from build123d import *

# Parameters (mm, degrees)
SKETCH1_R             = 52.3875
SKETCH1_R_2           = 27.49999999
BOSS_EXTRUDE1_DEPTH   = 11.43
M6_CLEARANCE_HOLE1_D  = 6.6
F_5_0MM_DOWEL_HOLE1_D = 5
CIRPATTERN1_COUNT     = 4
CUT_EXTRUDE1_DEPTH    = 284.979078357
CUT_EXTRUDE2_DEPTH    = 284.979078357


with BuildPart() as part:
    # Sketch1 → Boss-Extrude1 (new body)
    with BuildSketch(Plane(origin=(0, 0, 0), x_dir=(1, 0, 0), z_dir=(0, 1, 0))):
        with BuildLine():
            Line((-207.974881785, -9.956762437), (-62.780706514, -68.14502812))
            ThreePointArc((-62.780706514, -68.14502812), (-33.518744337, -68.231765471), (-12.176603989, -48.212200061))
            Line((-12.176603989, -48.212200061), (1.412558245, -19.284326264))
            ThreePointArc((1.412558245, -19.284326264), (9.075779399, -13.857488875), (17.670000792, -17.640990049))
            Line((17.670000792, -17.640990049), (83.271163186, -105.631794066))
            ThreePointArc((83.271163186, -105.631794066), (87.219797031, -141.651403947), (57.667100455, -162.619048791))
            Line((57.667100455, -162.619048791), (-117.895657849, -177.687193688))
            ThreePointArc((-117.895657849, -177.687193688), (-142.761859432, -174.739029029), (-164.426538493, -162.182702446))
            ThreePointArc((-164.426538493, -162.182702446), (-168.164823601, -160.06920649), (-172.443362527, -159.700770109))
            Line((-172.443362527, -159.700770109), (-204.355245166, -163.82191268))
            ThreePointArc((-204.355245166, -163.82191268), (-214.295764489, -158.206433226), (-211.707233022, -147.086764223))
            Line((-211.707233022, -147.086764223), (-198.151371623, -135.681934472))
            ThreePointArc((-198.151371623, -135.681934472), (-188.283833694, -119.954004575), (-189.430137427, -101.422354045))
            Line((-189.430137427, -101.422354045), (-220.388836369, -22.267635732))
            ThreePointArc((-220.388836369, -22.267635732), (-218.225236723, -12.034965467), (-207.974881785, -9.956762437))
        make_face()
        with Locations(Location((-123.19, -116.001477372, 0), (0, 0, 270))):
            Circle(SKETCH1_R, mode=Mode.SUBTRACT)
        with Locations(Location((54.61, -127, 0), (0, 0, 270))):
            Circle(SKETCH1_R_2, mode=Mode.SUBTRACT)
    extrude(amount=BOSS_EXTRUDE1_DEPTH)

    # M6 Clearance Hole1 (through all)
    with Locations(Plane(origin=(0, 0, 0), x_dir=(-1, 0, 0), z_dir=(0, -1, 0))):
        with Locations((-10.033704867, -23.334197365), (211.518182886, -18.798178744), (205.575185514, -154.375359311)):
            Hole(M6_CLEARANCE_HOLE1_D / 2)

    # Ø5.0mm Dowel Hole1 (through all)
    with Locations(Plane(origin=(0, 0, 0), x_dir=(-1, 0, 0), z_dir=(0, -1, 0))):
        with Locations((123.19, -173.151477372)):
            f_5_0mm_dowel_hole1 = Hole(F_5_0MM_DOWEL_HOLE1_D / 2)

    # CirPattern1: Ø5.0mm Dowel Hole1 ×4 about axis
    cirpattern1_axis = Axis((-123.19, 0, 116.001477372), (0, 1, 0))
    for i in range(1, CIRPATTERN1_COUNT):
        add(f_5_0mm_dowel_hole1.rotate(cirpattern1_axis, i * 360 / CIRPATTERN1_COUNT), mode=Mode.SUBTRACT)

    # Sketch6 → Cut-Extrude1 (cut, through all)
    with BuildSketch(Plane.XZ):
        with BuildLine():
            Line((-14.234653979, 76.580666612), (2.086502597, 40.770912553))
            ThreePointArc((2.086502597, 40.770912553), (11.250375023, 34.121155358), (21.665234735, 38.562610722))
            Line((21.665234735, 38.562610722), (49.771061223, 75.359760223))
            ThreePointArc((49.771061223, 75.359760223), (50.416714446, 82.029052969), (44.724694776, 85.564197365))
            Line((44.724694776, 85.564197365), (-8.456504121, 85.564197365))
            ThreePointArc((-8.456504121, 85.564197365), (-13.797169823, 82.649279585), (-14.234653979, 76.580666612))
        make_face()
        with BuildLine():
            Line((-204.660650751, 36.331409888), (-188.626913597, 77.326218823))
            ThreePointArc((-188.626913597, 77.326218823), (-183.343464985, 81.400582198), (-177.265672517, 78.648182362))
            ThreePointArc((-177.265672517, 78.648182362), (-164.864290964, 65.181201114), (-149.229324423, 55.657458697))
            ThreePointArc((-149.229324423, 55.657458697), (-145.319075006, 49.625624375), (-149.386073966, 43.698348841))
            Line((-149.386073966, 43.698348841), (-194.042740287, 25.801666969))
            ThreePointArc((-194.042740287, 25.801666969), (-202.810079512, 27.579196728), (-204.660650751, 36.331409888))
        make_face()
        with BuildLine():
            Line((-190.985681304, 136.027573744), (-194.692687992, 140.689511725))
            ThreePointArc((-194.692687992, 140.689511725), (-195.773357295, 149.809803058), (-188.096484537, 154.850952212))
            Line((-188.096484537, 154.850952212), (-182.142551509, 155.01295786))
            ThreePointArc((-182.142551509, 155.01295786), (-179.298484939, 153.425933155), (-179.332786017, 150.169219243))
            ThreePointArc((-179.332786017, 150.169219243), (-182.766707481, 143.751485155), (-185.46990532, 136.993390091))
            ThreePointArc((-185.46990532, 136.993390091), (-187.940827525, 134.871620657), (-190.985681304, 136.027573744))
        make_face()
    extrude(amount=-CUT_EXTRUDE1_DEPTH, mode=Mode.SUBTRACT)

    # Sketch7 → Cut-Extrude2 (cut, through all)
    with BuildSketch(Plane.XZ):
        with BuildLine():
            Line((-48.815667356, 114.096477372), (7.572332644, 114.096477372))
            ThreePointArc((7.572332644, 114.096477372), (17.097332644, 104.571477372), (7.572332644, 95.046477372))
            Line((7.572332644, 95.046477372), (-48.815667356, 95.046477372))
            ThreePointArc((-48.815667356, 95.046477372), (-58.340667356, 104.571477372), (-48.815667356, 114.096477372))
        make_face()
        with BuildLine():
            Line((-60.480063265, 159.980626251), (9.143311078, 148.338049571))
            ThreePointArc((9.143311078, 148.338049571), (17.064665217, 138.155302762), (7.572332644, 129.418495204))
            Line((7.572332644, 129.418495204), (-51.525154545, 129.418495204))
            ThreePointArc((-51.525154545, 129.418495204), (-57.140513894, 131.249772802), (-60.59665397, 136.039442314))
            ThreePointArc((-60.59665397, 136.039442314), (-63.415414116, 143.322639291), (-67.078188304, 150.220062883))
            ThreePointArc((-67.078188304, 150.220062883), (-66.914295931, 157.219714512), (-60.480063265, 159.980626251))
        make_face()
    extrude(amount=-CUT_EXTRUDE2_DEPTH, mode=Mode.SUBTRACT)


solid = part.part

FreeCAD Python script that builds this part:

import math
import FreeCAD as App
import Part
import Sketcher
from FreeCAD import Vector
Q = App.Units.Quantity

doc = App.newDocument("Part")
body = doc.addObject("PartDesign::Body", "Body")

# Sketch on XZ plane
sketch1 = body.newObject("Sketcher::SketchObject", "Sketch")
sketch1.AttachmentSupport = (doc.getObject("XZ_Plane"), [""])
sketch1.MapMode = "FlatFace"
sketch1.addGeometry([
    Part.LineSegment(Vector(-62.780707, 68.145028, 0), Vector(-207.974882, 9.956762, 0)),  # 0
    Part.ArcOfCircle(Part.Circle(Vector(-211.518183, 18.798179, 0), Vector(0, 0, 1), 9.525), math.radians(158.638723), math.radians(291.839023)),  # 1
    Part.LineSegment(Vector(-220.388836, 22.267636, 0), Vector(-189.430137, 101.422354, 0)),  # 2
    Part.ArcOfCircle(Part.Circle(Vector(-217.679198, 112.471022, 0), Vector(0, 0, 1), 30.332861), math.radians(-21.361277), math.radians(49.925396)),  # 3
    Part.LineSegment(Vector(-198.151372, 135.681934, 0), Vector(-211.707233, 147.086764, 0)),  # 4
    Part.ArcOfCircle(Part.Circle(Vector(-205.575186, 154.375359, 0), Vector(0, 0, 1), 9.525), math.radians(82.641474), math.radians(229.925396)),  # 5
    Part.LineSegment(Vector(-204.355245, 163.821913, 0), Vector(-172.443363, 159.70077, 0)),  # 6
    Part.ArcOfCircle(Part.Circle(Vector(-171.150394, 169.712817, 0), Vector(0, 0, 1), 10.09519), math.radians(-97.358526), math.radians(-48.237421)),  # 7
    Part.ArcOfCircle(Part.Circle(Vector(-123.19, 116.001477, 0), Vector(0, 0, 1), 61.9125), math.radians(85.094458), math.radians(131.762579)),  # 8
    Part.LineSegment(Vector(-117.895658, 177.687194, 0), Vector(57.6671, 162.619049, 0)),  # 9
    Part.ArcOfCircle(Part.Circle(Vector(54.61, 127, 0), Vector(0, 0, 1), 35.75), math.radians(-36.706211), math.radians(85.094458)),  # 10
    Part.LineSegment(Vector(83.271163, 105.631794, 0), Vector(17.670001, 17.64099, 0)),  # 11
    Part.ArcOfCircle(Part.Circle(Vector(10.033705, 23.334197, 0), Vector(0, 0, 1), 9.525), math.radians(-154.837733), math.radians(-36.706211)),  # 12
    Part.LineSegment(Vector(1.412558, 19.284326, 0), Vector(-12.176604, 48.2122, 0)),  # 13
    Part.ArcOfCircle(Part.Circle(Vector(-48.040574, 31.364736, 0), Vector(0, 0, 1), 39.624), math.radians(25.162267), math.radians(111.839023)),  # 14
    Part.Circle(Vector(54.61, 127, 0), Vector(0, 0, 1), 27.5),  # 15
    Part.Circle(Vector(-123.19, 116.001477, 0), Vector(0, 0, 1), 52.3875),  # 16
], False)
sketch1.addConstraint([
    Sketcher.Constraint("Tangent", 0, 2, 1, 2),
    Sketcher.Constraint("Tangent", 1, 1, 2, 1),
    Sketcher.Constraint("Tangent", 2, 2, 3, 1),
    Sketcher.Constraint("Tangent", 3, 2, 4, 1),
    Sketcher.Constraint("Tangent", 4, 2, 5, 2),
    Sketcher.Constraint("Tangent", 5, 1, 6, 1),
    Sketcher.Constraint("Tangent", 6, 2, 7, 1),
    Sketcher.Constraint("Tangent", 7, 2, 8, 2),
    Sketcher.Constraint("Tangent", 8, 1, 9, 1),
    Sketcher.Constraint("Tangent", 9, 2, 10, 2),
    Sketcher.Constraint("Tangent", 10, 1, 11, 1),
    Sketcher.Constraint("Tangent", 11, 2, 12, 2),
    Sketcher.Constraint("Tangent", 12, 1, 13, 1),
    Sketcher.Constraint("Tangent", 13, 2, 14, 1),
    Sketcher.Constraint("Tangent", 14, 2, 0, 1),
    Sketcher.Constraint("Coincident", 15, 3, 10, 3),
    Sketcher.Constraint("Coincident", 16, 3, 8, 3),
    Sketcher.Constraint("Equal", 1, 5),
    Sketcher.Constraint("Equal", 5, 12),
    Sketcher.Constraint("Radius", 14, Q("1.56 in")),
    Sketcher.Constraint("Diameter", 16, Q("4.125 in")),
    Sketcher.Constraint("DistanceY", -1, 1, 10, 3, Q("5 in")),
    Sketcher.Constraint("Radius", 1, Q("0.375 in")),
    Sketcher.Constraint("Radius", 8, Q("2.4375 in")),
    Sketcher.Constraint("DistanceX", 8, 3, 10, 3, Q("7 in")),
    Sketcher.Constraint("Diameter", 15, 55.0),
    Sketcher.Constraint("DistanceX", 8, 3, -1, 1, Q("4.85 in")),
    Sketcher.Constraint("Radius", 10, 35.75),
    Sketcher.Constraint("Radius", 3, 30.332861),
    Sketcher.Constraint("Radius", 7, 10.09519),
    Sketcher.Constraint("DistanceX", 1, 3, 0, 2, Q("0.1395 in")),
    Sketcher.Constraint("DistanceY", 14, 3, 10, 1, Q("2.9238999 in")),
    Sketcher.Constraint("DistanceX", 3, 3, -1, 1, 217.679198),
    Sketcher.Constraint("DistanceX", -1, 1, 9, 2, 57.6671),
    Sketcher.Constraint("DistanceX", -1, 1, 11, 2, 17.670001),
    Sketcher.Constraint("DistanceY", -1, 1, 13, 2, 48.2122),
    Sketcher.Constraint("DistanceY", 1, 3, 8, 3, 97.203299),
    Sketcher.Constraint("DistanceX", 7, 3, 12, 3, 181.184098),
    Sketcher.Constraint("DistanceY", 12, 1, 14, 2, 48.860702),
    Sketcher.Constraint("Distance", 2, 84.993591),
    Sketcher.Constraint("Distance", 4, 17.715291),
    Sketcher.Constraint("DistanceY", -1, 1, 5, 3, 154.375359),
])
pad1 = body.newObject("PartDesign::Pad", "Pad")
pad1.Profile = sketch1
pad1.Length = Q("0.45 in")
pad1.Reversed = True

# Sketch on XZ plane
sketch2 = body.newObject("Sketcher::SketchObject", "Sketch001")
sketch2.AttachmentSupport = (doc.getObject("XZ_Plane"), [""])
sketch2.MapMode = "FlatFace"
sketch2.addGeometry([
    Part.Circle(Vector(10, 23.3, 0), Vector(0, 0, 1), 3.3),
    Part.Circle(Vector(-211.5, 18.8, 0), Vector(0, 0, 1), 3.3),
    Part.Circle(Vector(-205.6, 154.4, 0), Vector(0, 0, 1), 3.3),
], False)
sketch2.addConstraint([
    Sketcher.Constraint("Equal", 0, 1),
    Sketcher.Constraint("Equal", 1, 2),
    Sketcher.Constraint("Diameter", 0, 6.6),
    Sketcher.Constraint("DistanceY", -1, 1, 1, 3, 18.798179),
    Sketcher.Constraint("DistanceY", -1, 1, 2, 3, 154.375359),
    Sketcher.Constraint("DistanceY", 1, 3, 0, 3, 4.536019),
    Sketcher.Constraint("DistanceX", 2, 3, 0, 3, 215.60889),
    Sketcher.Constraint("DistanceX", -1, 1, 0, 3, 10.033705),
    Sketcher.Constraint("DistanceX", 1, 3, -1, 1, 211.518183),
])
doc.recompute()
hole = body.newObject("PartDesign::Hole", "Hole")
hole.Profile = sketch2
hole.ThreadType = "None"
hole.Diameter = 6.6
hole.DepthType = "ThroughAll"

# Sketch on XZ plane
sketch3 = body.newObject("Sketcher::SketchObject", "Sketch002")
sketch3.AttachmentSupport = (doc.getObject("XZ_Plane"), [""])
sketch3.MapMode = "FlatFace"
sketch3.addGeometry(Part.Circle(Vector(-123.2, 173.2, 0), Vector(0, 0, 1), 2.5), False)
sketch3.addConstraint([
    Sketcher.Constraint("Diameter", 0, 5.0),
    Sketcher.Constraint("DistanceX", 0, 3, -1, 1, Q("4.85 in")),
    Sketcher.Constraint("DistanceY", -1, 1, 0, 3, 173.151477),
])
doc.recompute()
hole2 = body.newObject("PartDesign::Hole", "Hole001")
hole2.Profile = sketch3
hole2.ThreadType = "None"
hole2.Diameter = 5
hole2.DepthType = "ThroughAll"
doc.recompute()

datumline = body.newObject("PartDesign::Line", "DatumLine")
datumline.Placement = App.Placement(Vector(-123.19, 0, 116.001477), App.Rotation(Vector(0, 0, 1), Vector(0, 1, 0)))
polarpattern = body.newObject("PartDesign::PolarPattern", "PolarPattern")
polarpattern.Originals = [hole2]
polarpattern.Axis = (datumline, [""])
polarpattern.Angle = 360
polarpattern.Occurrences = 4
body.Tip = polarpattern

# Sketch on XZ plane
sketch4 = body.newObject("Sketcher::SketchObject", "Sketch003")
sketch4.AttachmentSupport = (doc.getObject("XZ_Plane"), [""])
sketch4.MapMode = "FlatFace"
sketch4.addGeometry([
    Part.LineSegment(Vector(-14.2, 76.6, 0), Vector(2.1, 40.8, 0)),  # 0
    Part.ArcOfCircle(Part.Circle(Vector(12.5, 45.5, 0), Vector(0, 0, 1), 11.5), math.radians(-155), math.radians(-37)),  # 1
    Part.LineSegment(Vector(21.7, 38.6, 0), Vector(49.8, 75.4, 0)),  # 2
    Part.ArcOfCircle(Part.Circle(Vector(44.7, 79.2, 0), Vector(0, 0, 1), 6.3), math.radians(-37), math.radians(90)),  # 3
    Part.LineSegment(Vector(44.7, 85.6, 0), Vector(-8.5, 85.6, 0)),  # 4
    Part.ArcOfCircle(Part.Circle(Vector(-8.5, 79.2, 0), Vector(0, 0, 1), 6.4), math.radians(90), math.radians(205)),  # 5
    Part.LineSegment(Vector(-188.6, 77.3, 0), Vector(-204.7, 36.3, 0)),  # 6
    Part.ArcOfCircle(Part.Circle(Vector(-197.1, 33.4, 0), Vector(0, 0, 1), 8.1), math.radians(159), math.radians(292)),  # 7
    Part.LineSegment(Vector(-194, 25.8, 0), Vector(-149.4, 43.7, 0)),  # 8
    Part.ArcOfCircle(Part.Circle(Vector(-151.8, 49.7, 0), Vector(0, 0, 1), 6.5), math.radians(-68), math.radians(67)),  # 9
    Part.ArcOfCircle(Part.Circle(Vector(-123.2, 116, 0), Vector(0, 0, 1), 65.7), math.radians(-145), math.radians(-113)),  # 10
    Part.ArcOfCircle(Part.Circle(Vector(-182.6, 75, 0), Vector(0, 0, 1), 6.5), math.radians(35), math.radians(159)),  # 11
    Part.LineSegment(Vector(-194.7, 140.7, 0), Vector(-191, 136, 0)),  # 12
    Part.ArcOfCircle(Part.Circle(Vector(-188.5, 138, 0), Vector(0, 0, 1), 3.2), math.radians(-142), math.radians(-19)),  # 13
    Part.ArcOfCircle(Part.Circle(Vector(-123.2, 116, 0), Vector(0, 0, 1), 65.7), math.radians(148.68), math.radians(161.37)),  # 14
    Part.ArcOfCircle(Part.Circle(Vector(-182.1, 151.8, 0), Vector(0, 0, 1), 3.2), math.radians(-31), math.radians(92)),  # 15
    Part.LineSegment(Vector(-182.1, 155, 0), Vector(-188.1, 154.9, 0)),  # 16
    Part.ArcOfCircle(Part.Circle(Vector(-187.9, 146.1, 0), Vector(0, 0, 1), 8.7), math.radians(92), math.radians(218)),  # 17
], False)
sketch4.addConstraint([
    Sketcher.Constraint("Tangent", 0, 2, 1, 1),
    Sketcher.Constraint("Tangent", 1, 2, 2, 1),
    Sketcher.Constraint("Tangent", 2, 2, 3, 1),
    Sketcher.Constraint("Tangent", 3, 2, 4, 1),
    Sketcher.Constraint("Tangent", 4, 2, 5, 1),
    Sketcher.Constraint("Tangent", 5, 2, 0, 1),
    Sketcher.Constraint("Tangent", 6, 2, 7, 1),
    Sketcher.Constraint("Tangent", 7, 2, 8, 1),
    Sketcher.Constraint("Tangent", 8, 2, 9, 1),
    Sketcher.Constraint("Tangent", 9, 2, 10, 2),
    Sketcher.Constraint("Tangent", 10, 1, 11, 1),
    Sketcher.Constraint("Tangent", 11, 2, 6, 1),
    Sketcher.Constraint("Tangent", 12, 2, 13, 1),
    Sketcher.Constraint("Tangent", 13, 2, 14, 2),
    Sketcher.Constraint("Tangent", 14, 1, 15, 1),
    Sketcher.Constraint("Tangent", 15, 2, 16, 1),
    Sketcher.Constraint("Tangent", 16, 2, 17, 1),
    Sketcher.Constraint("Tangent", 17, 2, 12, 1),
    Sketcher.Constraint("Horizontal", 4),
    Sketcher.Constraint("Coincident", 14, 3, 10, 3),
    Sketcher.Constraint("Equal", 3, 5),
    Sketcher.Constraint("Equal", 9, 11),
    Sketcher.Constraint("Equal", 10, 14),
    Sketcher.Constraint("Equal", 13, 15),
    Sketcher.Constraint("Equal", 12, 16),
    Sketcher.Constraint("Radius", 3, Q("0.25 in")),
    Sketcher.Constraint("Radius", 9, Q("0.255 in")),
    Sketcher.Constraint("Radius", 10, Q("2.5875 in")),
    Sketcher.Constraint("Radius", 13, Q("0.1255 in")),
    Sketcher.Constraint("DistanceX", 10, 3, -1, 1, Q("4.85 in")),
    Sketcher.Constraint("Radius", 7, 8.146928),
    Sketcher.Constraint("DistanceX", 4, 2, 4, 1, 53.181199),
    Sketcher.Constraint("Radius", 1, 11.485497),
    Sketcher.Constraint("Radius", 17, 8.730773),
    Sketcher.Constraint("Distance", 2, 46.302999),
    Sketcher.Constraint("DistanceX", 7, 3, -1, 1, 197.073399),
    Sketcher.Constraint("DistanceY", 7, 3, 9, 3, 16.3466),
    Sketcher.Constraint("DistanceY", 1, 2, 0, 2, 2.208302),
    Sketcher.Constraint("DistanceY", 6, 2, 17, 3, 109.791999),
    Sketcher.Constraint("DistanceX", 10, 1, 8, 2, 27.879599),
    Sketcher.Constraint("DistanceX", 16, 2, 14, 1, 8.763699),
    Sketcher.Constraint("DistanceX", -1, 1, 1, 3, 12.537672),
    Sketcher.Constraint("DistanceX", 9, 3, -1, 1, 151.795519),
    Sketcher.Constraint("DistanceY", -1, 1, 9, 3, 49.710512),
    Sketcher.Constraint("DistanceX", 13, 3, -1, 1, 188.490631),
    Sketcher.Constraint("DistanceY", -1, 1, 1, 2, 38.562611),
])
pocket1 = body.newObject("PartDesign::Pocket", "Pocket")
pocket1.Profile = sketch4
pocket1.Type = "ThroughAll"

# Sketch on XZ plane
sketch5 = body.newObject("Sketcher::SketchObject", "Sketch004")
sketch5.AttachmentSupport = (doc.getObject("XZ_Plane"), [""])
sketch5.MapMode = "FlatFace"
sketch5.addGeometry([
    Part.LineSegment(Vector(8, 114, 0), Vector(-49, 114, 0)),  # 0
    Part.ArcOfCircle(Part.Circle(Vector(-49, 105, 0), Vector(0, 0, 1), 10), math.radians(90), math.radians(270)),  # 1
    Part.LineSegment(Vector(-49, 95, 0), Vector(8, 95, 0)),  # 2
    Part.ArcOfCircle(Part.Circle(Vector(8, 105, 0), Vector(0, 0, 1), 10), math.radians(-90), math.radians(90)),  # 3
    Part.LineSegment(Vector(9, 148, 0), Vector(-60, 160, 0)),  # 4
    Part.ArcOfCircle(Part.Circle(Vector(-62, 154, 0), Vector(0, 0, 1), 6), math.radians(81), math.radians(211)),  # 5
    Part.ArcOfCircle(Part.Circle(Vector(-123, 116, 0), Vector(0, 0, 1), 66), math.radians(17.75), math.radians(31.38)),  # 6
    Part.ArcOfCircle(Part.Circle(Vector(-52, 139, 0), Vector(0, 0, 1), 10), math.radians(-162), math.radians(-90)),  # 7
    Part.LineSegment(Vector(-52, 129, 0), Vector(8, 129, 0)),  # 8
    Part.ArcOfCircle(Part.Circle(Vector(8, 139, 0), Vector(0, 0, 1), 10), math.radians(-90), math.radians(81)),  # 9
], False)
sketch5.addConstraint([
    Sketcher.Constraint("Tangent", 0, 2, 1, 1),
    Sketcher.Constraint("Tangent", 1, 2, 2, 1),
    Sketcher.Constraint("Tangent", 2, 2, 3, 1),
    Sketcher.Constraint("Tangent", 3, 2, 0, 1),
    Sketcher.Constraint("Tangent", 4, 2, 5, 1),
    Sketcher.Constraint("Tangent", 5, 2, 6, 2),
    Sketcher.Constraint("Tangent", 6, 1, 7, 1),
    Sketcher.Constraint("Tangent", 7, 2, 8, 1),
    Sketcher.Constraint("Tangent", 8, 2, 9, 1),
    Sketcher.Constraint("Tangent", 9, 2, 4, 1),
    Sketcher.Constraint("Horizontal", 0),
    Sketcher.Constraint("Horizontal", 2),
    Sketcher.Constraint("Horizontal", 8),
    Sketcher.Constraint("Equal", 3, 7),
    Sketcher.Constraint("Equal", 7, 9),
    Sketcher.Constraint("Vertical", 3, 3, 9, 3),
    Sketcher.Constraint("Radius", 1, Q("0.375 in")),
    Sketcher.Constraint("Radius", 5, Q("0.255 in")),
    Sketcher.Constraint("DistanceX", 0, 2, 0, 1, Q("2.22 in")),
    Sketcher.Constraint("Radius", 6, Q("2.5875 in")),
    Sketcher.Constraint("DistanceX", 6, 3, -1, 1, Q("4.85 in")),
    Sketcher.Constraint("DistanceY", 1, 3, 6, 3, Q("0.45 in")),
    Sketcher.Constraint("Distance", 4, 70.590112),
    Sketcher.Constraint("DistanceX", 8, 1, 8, 2, 59.097487),
    Sketcher.Constraint("DistanceX", 5, 3, -1, 1, 61.548329),
    Sketcher.Constraint("DistanceY", -1, 1, 5, 3, 153.592329),
])
pocket2 = body.newObject("PartDesign::Pocket", "Pocket001")
pocket2.Profile = sketch5
pocket2.Type = "ThroughAll"

doc.recompute()
